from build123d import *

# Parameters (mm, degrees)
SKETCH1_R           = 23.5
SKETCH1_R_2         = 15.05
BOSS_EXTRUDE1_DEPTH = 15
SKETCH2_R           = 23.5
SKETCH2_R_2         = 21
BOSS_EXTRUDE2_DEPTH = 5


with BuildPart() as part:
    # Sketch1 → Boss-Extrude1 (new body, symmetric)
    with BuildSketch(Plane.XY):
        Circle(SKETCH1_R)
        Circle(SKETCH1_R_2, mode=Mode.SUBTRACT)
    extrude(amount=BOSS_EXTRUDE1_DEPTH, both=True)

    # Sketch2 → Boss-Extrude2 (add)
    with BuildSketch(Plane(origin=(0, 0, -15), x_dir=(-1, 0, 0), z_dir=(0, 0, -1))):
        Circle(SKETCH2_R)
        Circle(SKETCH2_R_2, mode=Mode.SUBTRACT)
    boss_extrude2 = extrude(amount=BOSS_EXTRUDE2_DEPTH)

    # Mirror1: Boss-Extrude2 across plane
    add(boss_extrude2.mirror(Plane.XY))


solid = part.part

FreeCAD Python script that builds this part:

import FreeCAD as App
import Part
import Sketcher
from FreeCAD import Vector

doc = App.newDocument("Part")
body = doc.addObject("PartDesign::Body", "Body")

# Sketch on XY plane
sketch1 = body.newObject("Sketcher::SketchObject", "Sketch")
sketch1.AttachmentSupport = (doc.getObject("XY_Plane"), [""])
sketch1.MapMode = "FlatFace"
sketch1.addGeometry([
    Part.Circle(Vector(0, 0, 0), Vector(0, 0, 1), 24),
    Part.Circle(Vector(0, 0, 0), Vector(0, 0, 1), 15),
], False)
sketch1.addConstraint([
    Sketcher.Constraint("Coincident", 0, 3, -1, 1),
    Sketcher.Constraint("Coincident", 1, 3, -1, 1),
    Sketcher.Constraint("Diameter", 0, 47.0),
    Sketcher.Constraint("Diameter", 1, 30.1),
])
pad1 = body.newObject("PartDesign::Pad", "Pad")
pad1.Profile = sketch1
pad1.Length = 30
pad1.Midplane = True

# Sketch on XY plane
sketch2 = body.newObject("Sketcher::SketchObject", "Sketch001")
sketch2.AttachmentSupport = (doc.getObject("XY_Plane"), [""])
sketch2.MapMode = "FlatFace"
sketch2.AttachmentOffset = App.Placement(Vector(0, 0, -15), App.Rotation())
sketch2.addGeometry([
    Part.Circle(Vector(0, 0, 0), Vector(0, 0, 1), 24),
    Part.Circle(Vector(0, 0, 0), Vector(0, 0, 1), 21),
], False)
sketch2.addConstraint([
    Sketcher.Constraint("Coincident", 0, 3, -1, 1),
    Sketcher.Constraint("Coincident", 1, 3, -1, 1),
    Sketcher.Constraint("Diameter", 0, 47.0),
    Sketcher.Constraint("Diameter", 1, 42.0),
])
pad2 = body.newObject("PartDesign::Pad", "Pad001")
pad2.Profile = sketch2
pad2.Length = 5
pad2.Reversed = True
doc.recompute()

mirrored = body.newObject("PartDesign::Mirrored", "Mirrored")
mirrored.Originals = [pad2]
mirrored.MirrorPlane = (doc.getObject("XY_Plane"), [""])
body.Tip = mirrored

doc.recompute()
